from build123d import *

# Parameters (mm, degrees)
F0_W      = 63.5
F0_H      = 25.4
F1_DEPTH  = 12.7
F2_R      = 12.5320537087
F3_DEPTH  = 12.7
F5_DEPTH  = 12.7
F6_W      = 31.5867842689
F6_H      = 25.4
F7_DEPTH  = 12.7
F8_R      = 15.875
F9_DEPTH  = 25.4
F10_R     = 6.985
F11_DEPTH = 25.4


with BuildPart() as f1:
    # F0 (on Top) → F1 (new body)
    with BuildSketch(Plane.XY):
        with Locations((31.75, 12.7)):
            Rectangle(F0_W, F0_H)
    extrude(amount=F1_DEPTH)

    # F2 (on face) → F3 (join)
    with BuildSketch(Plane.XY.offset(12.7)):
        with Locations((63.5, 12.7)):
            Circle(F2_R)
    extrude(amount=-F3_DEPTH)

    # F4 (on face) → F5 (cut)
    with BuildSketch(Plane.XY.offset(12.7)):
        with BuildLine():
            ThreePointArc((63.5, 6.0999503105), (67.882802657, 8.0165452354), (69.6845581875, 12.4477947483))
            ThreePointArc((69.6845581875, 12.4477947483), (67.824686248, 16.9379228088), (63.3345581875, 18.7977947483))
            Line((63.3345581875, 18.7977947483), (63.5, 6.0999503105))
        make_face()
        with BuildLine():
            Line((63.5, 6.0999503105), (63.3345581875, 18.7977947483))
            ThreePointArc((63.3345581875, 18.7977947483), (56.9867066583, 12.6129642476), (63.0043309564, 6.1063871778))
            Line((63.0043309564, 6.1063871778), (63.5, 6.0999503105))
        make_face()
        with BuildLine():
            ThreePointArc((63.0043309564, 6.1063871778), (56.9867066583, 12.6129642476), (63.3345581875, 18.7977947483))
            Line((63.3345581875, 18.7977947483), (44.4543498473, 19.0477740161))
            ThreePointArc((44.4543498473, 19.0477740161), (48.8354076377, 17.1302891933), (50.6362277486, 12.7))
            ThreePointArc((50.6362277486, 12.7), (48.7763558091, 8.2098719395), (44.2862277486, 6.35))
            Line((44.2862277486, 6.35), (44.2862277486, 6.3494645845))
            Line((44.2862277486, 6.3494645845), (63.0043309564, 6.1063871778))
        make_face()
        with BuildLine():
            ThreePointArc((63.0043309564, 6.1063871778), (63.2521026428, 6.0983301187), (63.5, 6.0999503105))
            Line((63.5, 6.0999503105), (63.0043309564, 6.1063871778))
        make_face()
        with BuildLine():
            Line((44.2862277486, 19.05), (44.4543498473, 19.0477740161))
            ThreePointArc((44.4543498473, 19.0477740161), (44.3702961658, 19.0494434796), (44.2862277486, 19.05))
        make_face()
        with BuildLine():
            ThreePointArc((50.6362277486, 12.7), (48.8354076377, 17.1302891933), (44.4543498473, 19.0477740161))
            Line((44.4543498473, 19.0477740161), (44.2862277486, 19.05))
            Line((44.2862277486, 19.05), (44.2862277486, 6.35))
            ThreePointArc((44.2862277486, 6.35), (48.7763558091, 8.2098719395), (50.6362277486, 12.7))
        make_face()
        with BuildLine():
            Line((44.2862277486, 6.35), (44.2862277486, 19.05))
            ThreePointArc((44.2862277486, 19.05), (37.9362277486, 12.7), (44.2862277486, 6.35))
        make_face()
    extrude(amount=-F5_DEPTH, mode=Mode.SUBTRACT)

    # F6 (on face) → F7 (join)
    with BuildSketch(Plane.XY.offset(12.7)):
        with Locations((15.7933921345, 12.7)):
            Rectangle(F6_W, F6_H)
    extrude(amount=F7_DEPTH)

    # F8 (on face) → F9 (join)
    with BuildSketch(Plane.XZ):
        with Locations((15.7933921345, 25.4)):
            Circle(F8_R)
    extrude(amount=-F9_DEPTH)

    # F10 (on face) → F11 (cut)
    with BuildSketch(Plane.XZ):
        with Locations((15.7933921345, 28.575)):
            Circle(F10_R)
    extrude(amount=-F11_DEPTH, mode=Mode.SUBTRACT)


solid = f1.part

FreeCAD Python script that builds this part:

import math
import FreeCAD as App
import Part
import Sketcher

V = App.Vector
Q = App.Units.Quantity


def add_polygon(sketch, points):
    """Adds a closed chain of lines whose ends are joined by coincident constraints."""
    first, n = sketch.GeometryCount, len(points)
    for a, b in zip(points, points[1:] + points[:1]):
        sketch.addGeometry(Part.LineSegment(App.Vector(*a, 0), App.Vector(*b, 0)), False)
    for i in range(n):
        sketch.addConstraint(Sketcher.Constraint("Coincident", first + i, 2, first + (i + 1) % n, 1))

doc = App.newDocument("Part")
body = doc.addObject("PartDesign::Body", "Body")

# Sketch on XY plane
sketch1 = body.newObject("Sketcher::SketchObject", "Sketch")
sketch1.AttachmentSupport = (doc.getObject("XY_Plane"), [""])
sketch1.MapMode = "FlatFace"
add_polygon(sketch1, [(0, 25), (0, 0), (64, 0), (64, 25)])  # lines 0-3
sketch1.addConstraint([
    Sketcher.Constraint("Vertical", 0),
    Sketcher.Constraint("Horizontal", 1),
    Sketcher.Constraint("Vertical", 2),
    Sketcher.Constraint("Horizontal", 3),
    Sketcher.Constraint("Coincident", 0, 2, -1, 1),
    Sketcher.Constraint("DistanceY", 0, 2, 0, 1, Q("1 in")),
    Sketcher.Constraint("DistanceX", 1, 1, 1, 2, Q("2.5 in")),
])
pad1 = body.newObject("PartDesign::Pad", "Pad")
pad1.Profile = sketch1
pad1.Length = Q("0.5 in")

# Sketch on XY plane
sketch2 = body.newObject("Sketcher::SketchObject", "Sketch001")
sketch2.AttachmentSupport = (doc.getObject("XY_Plane"), [""])
sketch2.MapMode = "FlatFace"
sketch2.AttachmentOffset = App.Placement(V(0, 0, 0.5 * 25.4), App.Rotation())
sketch2.addGeometry(Part.Circle(V(64, 13, 0), V(0, 0, 1), 13), False)
sketch2.addConstraint([
    Sketcher.Constraint("DistanceX", -1, 1, 0, 3, Q("2.5 in")),
    Sketcher.Constraint("DistanceY", -1, 1, 0, 3, Q("0.5 in")),
    Sketcher.Constraint("Diameter", 0, 25.064107),
])
pad2 = body.newObject("PartDesign::Pad", "Pad001")
pad2.Profile = sketch2
pad2.Length = Q("0.5 in")
pad2.Reversed = True

# Sketch on XY plane
sketch3 = body.newObject("Sketcher::SketchObject", "Sketch002")
sketch3.AttachmentSupport = (doc.getObject("XY_Plane"), [""])
sketch3.MapMode = "FlatFace"
sketch3.AttachmentOffset = App.Placement(V(0, 0, 0.5 * 25.4), App.Rotation())
sketch3.addGeometry([
    Part.ArcOfCircle(Part.Circle(V(63.3346, 12.4478, 0), V(0, 0, 1), 6.35), math.radians(-89), math.radians(0)),  # 0
    Part.ArcOfCircle(Part.Circle(V(63.3346, 12.4478, 0), V(0, 0, 1), 6.35), math.radians(0), math.radians(90)),  # 1
    Part.LineSegment(V(63.3346, 18.7978, 0), V(44.4543, 19.0478, 0)),  # 2
    Part.ArcOfCircle(Part.Circle(V(44.2862, 12.7, 0), V(0, 0, 1), 6.35), math.radians(88.48), math.radians(90)),  # 3
    Part.ArcOfCircle(Part.Circle(V(44.2862, 12.7, 0), V(0, 0, 1), 6.35), math.radians(90), math.radians(270)),  # 4
    Part.LineSegment(V(44.2862, 6.35, 0), V(44.2862, 6.3495, 0)),  # 5
    Part.LineSegment(V(44.2862, 6.3495, 0), V(63.0043, 6.1064, 0)),  # 6
    Part.ArcOfCircle(Part.Circle(V(63.3346, 12.4478, 0), V(0, 0, 1), 6.35), math.radians(-92.98), math.radians(-88.51)),  # 7
], False)
sketch3.addConstraint([
    Sketcher.Constraint("Tangent", 0, 2, 1, 1),
    Sketcher.Constraint("Coincident", 1, 2, 2, 1),
    Sketcher.Constraint("Coincident", 2, 2, 3, 1),
    Sketcher.Constraint("Tangent", 3, 2, 4, 1),
    Sketcher.Constraint("Coincident", 4, 2, 5, 1),
    Sketcher.Constraint("Coincident", 5, 2, 6, 1),
    Sketcher.Constraint("Coincident", 6, 2, 7, 1),
    Sketcher.Constraint("Tangent", 7, 2, 0, 1),
    Sketcher.Constraint("Vertical", 5),
    Sketcher.Constraint("Equal", 0, 1),
    Sketcher.Constraint("Equal", 1, 3),
    Sketcher.Constraint("Equal", 3, 4),
    Sketcher.Constraint("Equal", 4, 7),
    Sketcher.Constraint("Horizontal", 7, 3, 0, 2),
    Sketcher.Constraint("Vertical", 7, 3, 1, 2),
    Sketcher.Constraint("Vertical", 4, 3, 3, 2),
    Sketcher.Constraint("Vertical", 3, 2, 4, 2),
    Sketcher.Constraint("Radius", 0, Q("0.25 in")),
    Sketcher.Constraint("DistanceY", -1, 1, 3, 3, Q("0.5 in")),
    Sketcher.Constraint("DistanceX", -1, 1, 7, 2, Q("2.5 in")),
    Sketcher.Constraint("Distance", 6, 18.719681),
    Sketcher.Constraint("DistanceY", 5, 2, 5, 1, 0.000535),
    Sketcher.Constraint("DistanceX", -1, 1, 0, 3, 63.334558),
    Sketcher.Constraint("DistanceX", -1, 1, 2, 2, 44.45435),
    Sketcher.Constraint("DistanceX", -1, 1, 6, 2, 63.004331),
    Sketcher.Constraint("DistanceY", -1, 1, 7, 2, 6.09995),
])
pocket1 = body.newObject("PartDesign::Pocket", "Pocket")
pocket1.Profile = sketch3
pocket1.Length = Q("0.5 in")

# Sketch on XY plane
sketch4 = body.newObject("Sketcher::SketchObject", "Sketch003")
sketch4.AttachmentSupport = (doc.getObject("XY_Plane"), [""])
sketch4.MapMode = "FlatFace"
sketch4.AttachmentOffset = App.Placement(V(0, 0, 0.5 * 25.4), App.Rotation())
add_polygon(sketch4, [(0, 25), (0, 0), (32, 0), (32, 25)])  # lines 0-3
sketch4.addConstraint([
    Sketcher.Constraint("Vertical", 0),
    Sketcher.Constraint("Horizontal", 1),
    Sketcher.Constraint("Vertical", 2),
    Sketcher.Constraint("Horizontal", 3),
    Sketcher.Constraint("Coincident", 0, 2, -1, 1),
    Sketcher.Constraint("DistanceY", 0, 2, 0, 1, Q("1 in")),
    Sketcher.Constraint("DistanceX", 1, 1, 1, 2, 31.586784),
])
pad3 = body.newObject("PartDesign::Pad", "Pad002")
pad3.Profile = sketch4
pad3.Length = Q("0.5 in")

# Sketch on XZ plane
sketch5 = body.newObject("Sketcher::SketchObject", "Sketch004")
sketch5.AttachmentSupport = (doc.getObject("XZ_Plane"), [""])
sketch5.MapMode = "FlatFace"
sketch5.addGeometry(Part.Circle(V(16, 25, 0), V(0, 0, 1), 16), False)
sketch5.addConstraint([
    Sketcher.Constraint("Diameter", 0, Q("1.25 in")),
    Sketcher.Constraint("DistanceY", -1, 1, 0, 3, Q("1 in")),
    Sketcher.Constraint("DistanceX", -1, 1, 0, 3, 15.793392),
])
pad4 = body.newObject("PartDesign::Pad", "Pad003")
pad4.Profile = sketch5
pad4.Length = Q("1 in")
pad4.Reversed = True

# Sketch on XZ plane
sketch6 = body.newObject("Sketcher::SketchObject", "Sketch005")
sketch6.AttachmentSupport = (doc.getObject("XZ_Plane"), [""])
sketch6.MapMode = "FlatFace"
sketch6.addGeometry(Part.Circle(V(16, 29, 0), V(0, 0, 1), 7), False)
sketch6.addConstraint([
    Sketcher.Constraint("Diameter", 0, Q("0.55 in")),
    Sketcher.Constraint("DistanceY", -1, 1, 0, 3, Q("1.125 in")),
    Sketcher.Constraint("DistanceX", -1, 1, 0, 3, 15.793392),
])
pocket2 = body.newObject("PartDesign::Pocket", "Pocket001")
pocket2.Profile = sketch6
pocket2.Length = Q("1 in")

doc.recompute()
